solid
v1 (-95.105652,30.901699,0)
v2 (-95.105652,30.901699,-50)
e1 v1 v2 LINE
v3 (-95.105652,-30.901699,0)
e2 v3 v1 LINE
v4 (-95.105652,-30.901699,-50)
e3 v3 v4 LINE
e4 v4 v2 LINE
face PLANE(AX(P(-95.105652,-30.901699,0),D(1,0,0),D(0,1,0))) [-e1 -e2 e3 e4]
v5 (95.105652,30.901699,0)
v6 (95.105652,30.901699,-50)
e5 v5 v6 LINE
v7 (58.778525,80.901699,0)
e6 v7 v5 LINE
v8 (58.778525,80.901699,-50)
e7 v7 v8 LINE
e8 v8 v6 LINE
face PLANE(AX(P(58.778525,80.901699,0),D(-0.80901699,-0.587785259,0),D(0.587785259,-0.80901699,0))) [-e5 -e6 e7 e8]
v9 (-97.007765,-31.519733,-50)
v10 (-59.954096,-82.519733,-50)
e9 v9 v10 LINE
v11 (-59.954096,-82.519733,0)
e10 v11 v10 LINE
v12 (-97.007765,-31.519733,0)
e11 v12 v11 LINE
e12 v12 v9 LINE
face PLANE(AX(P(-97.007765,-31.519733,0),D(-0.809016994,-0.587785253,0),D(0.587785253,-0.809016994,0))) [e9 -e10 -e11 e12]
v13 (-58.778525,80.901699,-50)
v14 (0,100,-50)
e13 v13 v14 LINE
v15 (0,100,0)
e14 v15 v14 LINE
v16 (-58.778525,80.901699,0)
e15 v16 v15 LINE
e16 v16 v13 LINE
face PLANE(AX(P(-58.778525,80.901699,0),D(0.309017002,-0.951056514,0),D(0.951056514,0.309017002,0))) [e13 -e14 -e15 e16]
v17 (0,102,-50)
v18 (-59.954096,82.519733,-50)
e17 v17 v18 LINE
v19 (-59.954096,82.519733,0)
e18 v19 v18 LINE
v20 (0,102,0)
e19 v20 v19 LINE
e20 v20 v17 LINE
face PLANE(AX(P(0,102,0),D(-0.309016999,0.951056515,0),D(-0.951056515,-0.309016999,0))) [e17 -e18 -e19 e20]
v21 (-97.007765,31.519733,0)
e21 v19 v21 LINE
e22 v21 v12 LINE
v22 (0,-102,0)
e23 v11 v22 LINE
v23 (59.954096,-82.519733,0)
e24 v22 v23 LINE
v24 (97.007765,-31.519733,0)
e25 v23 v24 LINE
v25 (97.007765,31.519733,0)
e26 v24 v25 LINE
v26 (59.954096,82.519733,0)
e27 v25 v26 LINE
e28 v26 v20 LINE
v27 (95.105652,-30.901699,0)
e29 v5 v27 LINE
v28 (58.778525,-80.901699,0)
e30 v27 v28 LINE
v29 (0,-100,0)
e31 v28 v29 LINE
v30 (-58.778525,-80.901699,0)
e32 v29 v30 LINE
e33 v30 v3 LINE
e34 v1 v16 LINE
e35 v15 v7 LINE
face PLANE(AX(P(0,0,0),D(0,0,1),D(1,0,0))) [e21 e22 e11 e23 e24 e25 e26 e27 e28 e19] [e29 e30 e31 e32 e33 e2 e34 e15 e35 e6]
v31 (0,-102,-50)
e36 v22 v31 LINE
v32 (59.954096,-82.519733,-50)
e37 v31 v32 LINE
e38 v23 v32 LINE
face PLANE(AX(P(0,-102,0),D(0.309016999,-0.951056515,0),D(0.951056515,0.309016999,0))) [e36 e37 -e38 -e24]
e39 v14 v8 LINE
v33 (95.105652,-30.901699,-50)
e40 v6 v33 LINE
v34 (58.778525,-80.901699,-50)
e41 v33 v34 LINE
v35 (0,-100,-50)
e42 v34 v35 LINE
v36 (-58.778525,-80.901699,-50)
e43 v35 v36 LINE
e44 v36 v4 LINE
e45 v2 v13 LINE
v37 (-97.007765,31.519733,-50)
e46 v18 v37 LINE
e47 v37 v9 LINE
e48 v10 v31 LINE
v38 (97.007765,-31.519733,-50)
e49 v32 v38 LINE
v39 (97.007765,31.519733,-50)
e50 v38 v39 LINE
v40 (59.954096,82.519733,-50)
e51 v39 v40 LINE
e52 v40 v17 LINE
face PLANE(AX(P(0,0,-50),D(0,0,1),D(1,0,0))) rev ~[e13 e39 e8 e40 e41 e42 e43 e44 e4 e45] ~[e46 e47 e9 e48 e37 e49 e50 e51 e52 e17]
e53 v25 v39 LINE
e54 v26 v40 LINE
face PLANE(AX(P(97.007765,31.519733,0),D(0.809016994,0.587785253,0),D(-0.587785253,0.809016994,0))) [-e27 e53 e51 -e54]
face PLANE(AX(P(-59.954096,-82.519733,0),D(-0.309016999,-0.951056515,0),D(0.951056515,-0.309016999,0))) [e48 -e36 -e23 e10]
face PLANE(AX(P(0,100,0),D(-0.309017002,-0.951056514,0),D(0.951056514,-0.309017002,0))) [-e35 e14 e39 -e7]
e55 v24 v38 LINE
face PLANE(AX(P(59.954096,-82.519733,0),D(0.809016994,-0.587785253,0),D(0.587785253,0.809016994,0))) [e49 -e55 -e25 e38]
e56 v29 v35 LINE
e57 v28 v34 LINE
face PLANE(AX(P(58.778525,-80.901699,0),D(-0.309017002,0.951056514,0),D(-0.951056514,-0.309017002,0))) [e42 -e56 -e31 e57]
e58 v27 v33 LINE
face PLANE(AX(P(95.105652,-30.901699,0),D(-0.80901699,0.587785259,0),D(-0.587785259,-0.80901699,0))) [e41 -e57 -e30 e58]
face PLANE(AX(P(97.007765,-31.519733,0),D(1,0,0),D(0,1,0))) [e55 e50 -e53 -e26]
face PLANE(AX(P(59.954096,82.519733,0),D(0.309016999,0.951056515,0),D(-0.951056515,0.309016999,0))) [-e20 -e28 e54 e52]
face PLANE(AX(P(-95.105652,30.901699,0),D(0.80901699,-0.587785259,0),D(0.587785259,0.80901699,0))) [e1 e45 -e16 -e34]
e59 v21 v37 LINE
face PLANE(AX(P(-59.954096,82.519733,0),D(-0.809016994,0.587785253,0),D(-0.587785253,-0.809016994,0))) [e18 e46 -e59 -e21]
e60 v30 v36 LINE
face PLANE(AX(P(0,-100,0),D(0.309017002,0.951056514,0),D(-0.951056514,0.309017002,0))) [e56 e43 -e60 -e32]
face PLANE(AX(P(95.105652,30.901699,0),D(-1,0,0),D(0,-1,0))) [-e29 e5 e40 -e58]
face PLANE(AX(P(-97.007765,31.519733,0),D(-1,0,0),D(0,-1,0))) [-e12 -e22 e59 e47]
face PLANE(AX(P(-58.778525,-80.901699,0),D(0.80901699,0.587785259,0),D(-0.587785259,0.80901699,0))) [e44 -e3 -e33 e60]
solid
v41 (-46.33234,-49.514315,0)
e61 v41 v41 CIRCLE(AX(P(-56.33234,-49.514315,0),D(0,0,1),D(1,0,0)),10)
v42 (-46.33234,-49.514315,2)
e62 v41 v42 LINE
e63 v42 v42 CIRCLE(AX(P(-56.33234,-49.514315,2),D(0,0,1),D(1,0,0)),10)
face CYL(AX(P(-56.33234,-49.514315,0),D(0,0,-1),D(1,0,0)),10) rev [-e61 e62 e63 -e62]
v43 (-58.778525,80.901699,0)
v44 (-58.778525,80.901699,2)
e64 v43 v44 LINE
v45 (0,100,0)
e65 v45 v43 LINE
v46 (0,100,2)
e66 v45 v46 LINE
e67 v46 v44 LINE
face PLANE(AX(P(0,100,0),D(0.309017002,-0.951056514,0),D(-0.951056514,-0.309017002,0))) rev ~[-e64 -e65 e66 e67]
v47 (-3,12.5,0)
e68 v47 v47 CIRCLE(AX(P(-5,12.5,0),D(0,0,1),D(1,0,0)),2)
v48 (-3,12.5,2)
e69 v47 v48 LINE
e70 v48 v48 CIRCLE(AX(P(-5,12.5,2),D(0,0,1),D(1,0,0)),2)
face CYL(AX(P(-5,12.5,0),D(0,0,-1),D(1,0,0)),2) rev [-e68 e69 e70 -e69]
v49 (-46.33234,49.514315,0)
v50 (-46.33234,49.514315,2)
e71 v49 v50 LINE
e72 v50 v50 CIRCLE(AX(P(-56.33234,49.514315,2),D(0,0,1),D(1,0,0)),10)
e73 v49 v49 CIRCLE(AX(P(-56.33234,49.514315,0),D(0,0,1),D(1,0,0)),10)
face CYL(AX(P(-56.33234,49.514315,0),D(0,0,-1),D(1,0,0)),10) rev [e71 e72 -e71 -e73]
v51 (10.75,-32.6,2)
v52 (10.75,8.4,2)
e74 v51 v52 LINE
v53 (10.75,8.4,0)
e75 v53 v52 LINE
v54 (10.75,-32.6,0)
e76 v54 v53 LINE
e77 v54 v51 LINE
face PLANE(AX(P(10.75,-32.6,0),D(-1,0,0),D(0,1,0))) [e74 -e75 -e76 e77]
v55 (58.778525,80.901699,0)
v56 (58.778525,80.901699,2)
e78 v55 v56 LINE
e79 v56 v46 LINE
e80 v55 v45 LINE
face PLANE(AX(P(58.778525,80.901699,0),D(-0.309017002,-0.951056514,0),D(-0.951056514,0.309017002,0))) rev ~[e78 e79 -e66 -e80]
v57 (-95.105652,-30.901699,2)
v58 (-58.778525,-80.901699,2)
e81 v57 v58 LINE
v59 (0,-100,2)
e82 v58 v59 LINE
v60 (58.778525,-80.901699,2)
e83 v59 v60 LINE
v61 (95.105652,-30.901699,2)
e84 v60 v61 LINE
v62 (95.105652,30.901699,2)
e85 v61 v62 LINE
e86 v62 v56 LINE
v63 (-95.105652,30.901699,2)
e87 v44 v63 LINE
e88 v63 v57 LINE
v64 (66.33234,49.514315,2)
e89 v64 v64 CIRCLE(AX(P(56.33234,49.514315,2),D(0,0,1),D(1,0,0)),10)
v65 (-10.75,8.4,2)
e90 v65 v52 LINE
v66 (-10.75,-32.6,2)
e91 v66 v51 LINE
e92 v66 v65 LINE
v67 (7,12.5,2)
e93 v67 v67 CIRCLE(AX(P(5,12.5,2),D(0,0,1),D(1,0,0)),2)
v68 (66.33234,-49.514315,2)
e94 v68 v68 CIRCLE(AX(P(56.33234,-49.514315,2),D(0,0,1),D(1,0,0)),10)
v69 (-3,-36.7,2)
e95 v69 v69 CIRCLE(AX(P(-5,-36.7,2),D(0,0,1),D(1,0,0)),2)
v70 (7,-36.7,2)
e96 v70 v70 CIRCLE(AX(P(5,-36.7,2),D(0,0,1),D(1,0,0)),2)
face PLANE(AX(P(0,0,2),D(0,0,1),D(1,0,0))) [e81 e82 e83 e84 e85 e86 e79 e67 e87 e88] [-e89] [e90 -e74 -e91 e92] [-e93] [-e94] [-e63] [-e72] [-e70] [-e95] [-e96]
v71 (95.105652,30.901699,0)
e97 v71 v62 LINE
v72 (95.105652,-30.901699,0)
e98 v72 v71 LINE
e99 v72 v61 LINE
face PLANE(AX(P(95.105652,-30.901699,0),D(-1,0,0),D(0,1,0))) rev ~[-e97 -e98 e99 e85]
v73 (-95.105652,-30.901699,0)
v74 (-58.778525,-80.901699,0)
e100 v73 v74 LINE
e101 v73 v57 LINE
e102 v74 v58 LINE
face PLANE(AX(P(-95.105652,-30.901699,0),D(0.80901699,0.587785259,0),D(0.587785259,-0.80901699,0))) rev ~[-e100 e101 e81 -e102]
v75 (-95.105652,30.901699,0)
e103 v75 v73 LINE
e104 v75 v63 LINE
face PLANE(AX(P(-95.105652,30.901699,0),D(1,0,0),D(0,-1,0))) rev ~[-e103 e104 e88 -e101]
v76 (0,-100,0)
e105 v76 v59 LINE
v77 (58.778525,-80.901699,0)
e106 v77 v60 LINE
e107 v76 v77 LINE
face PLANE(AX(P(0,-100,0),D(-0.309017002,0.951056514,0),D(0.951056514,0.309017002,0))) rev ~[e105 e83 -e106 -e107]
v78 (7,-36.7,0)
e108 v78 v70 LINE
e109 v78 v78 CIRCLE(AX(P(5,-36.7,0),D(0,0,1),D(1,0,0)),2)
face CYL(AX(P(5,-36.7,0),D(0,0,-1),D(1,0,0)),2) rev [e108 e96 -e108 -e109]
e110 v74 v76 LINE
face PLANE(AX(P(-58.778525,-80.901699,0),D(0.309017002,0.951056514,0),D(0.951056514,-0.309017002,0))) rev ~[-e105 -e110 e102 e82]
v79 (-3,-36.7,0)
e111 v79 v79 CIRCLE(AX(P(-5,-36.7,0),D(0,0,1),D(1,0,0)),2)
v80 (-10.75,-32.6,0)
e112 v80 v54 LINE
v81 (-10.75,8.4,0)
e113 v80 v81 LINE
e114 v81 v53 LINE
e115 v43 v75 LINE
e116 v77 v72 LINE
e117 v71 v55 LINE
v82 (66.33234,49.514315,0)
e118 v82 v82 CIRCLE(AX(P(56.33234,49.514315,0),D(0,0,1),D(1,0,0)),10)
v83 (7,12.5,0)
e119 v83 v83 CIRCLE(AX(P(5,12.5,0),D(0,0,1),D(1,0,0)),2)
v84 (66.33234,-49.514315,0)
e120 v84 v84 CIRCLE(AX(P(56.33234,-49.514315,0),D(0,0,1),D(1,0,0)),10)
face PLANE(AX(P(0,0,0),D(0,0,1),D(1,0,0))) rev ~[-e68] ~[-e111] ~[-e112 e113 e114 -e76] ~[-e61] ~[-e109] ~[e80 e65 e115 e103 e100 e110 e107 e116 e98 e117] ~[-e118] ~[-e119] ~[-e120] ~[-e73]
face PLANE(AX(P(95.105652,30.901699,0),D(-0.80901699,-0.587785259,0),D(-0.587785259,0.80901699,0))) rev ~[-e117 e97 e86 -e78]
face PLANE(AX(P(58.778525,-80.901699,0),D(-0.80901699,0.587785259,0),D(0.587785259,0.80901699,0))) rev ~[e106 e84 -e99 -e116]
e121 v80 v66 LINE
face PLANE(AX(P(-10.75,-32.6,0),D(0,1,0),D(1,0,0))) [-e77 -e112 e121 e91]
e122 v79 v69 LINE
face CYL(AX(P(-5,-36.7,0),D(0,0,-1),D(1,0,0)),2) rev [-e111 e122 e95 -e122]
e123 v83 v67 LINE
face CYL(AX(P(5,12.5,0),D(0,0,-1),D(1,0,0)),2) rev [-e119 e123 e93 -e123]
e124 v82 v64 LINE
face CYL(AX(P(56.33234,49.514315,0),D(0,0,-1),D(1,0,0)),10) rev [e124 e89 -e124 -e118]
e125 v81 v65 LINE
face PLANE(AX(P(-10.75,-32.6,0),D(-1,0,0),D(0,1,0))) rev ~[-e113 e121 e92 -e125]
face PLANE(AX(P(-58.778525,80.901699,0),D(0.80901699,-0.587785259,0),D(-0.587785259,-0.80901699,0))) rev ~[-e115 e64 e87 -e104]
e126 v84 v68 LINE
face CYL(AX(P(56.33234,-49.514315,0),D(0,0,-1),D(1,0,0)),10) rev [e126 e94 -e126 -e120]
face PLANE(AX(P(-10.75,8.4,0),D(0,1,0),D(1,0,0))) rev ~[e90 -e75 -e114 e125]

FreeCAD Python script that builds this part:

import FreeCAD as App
import Part
import Sketcher

V = App.Vector
Q = App.Units.Quantity

doc = App.newDocument("Part")
body = doc.addObject("PartDesign::Body", "Body")

sketch1 = doc.addObject("Sketcher::SketchObject", "Sketch")
body.addObject(sketch1)
sketch1.AttachmentSupport = (doc.XY_Plane, [""])
sketch1.MapMode = "FlatFace"
sketch1.addGeometry(Part.LineSegment(V(58.778525, 80.901699, 0), V(0, 100, 0)), False)
sketch1.addGeometry(Part.LineSegment(V(0, 100, 0), V(-58.778525, 80.901699, 0)), False)
sketch1.addGeometry(Part.LineSegment(V(-58.778525, 80.901699, 0), V(-95.105652, 30.901699, 0)), False)
sketch1.addGeometry(Part.LineSegment(V(-95.105652, 30.901699, 0), V(-95.105652, -30.901699, 0)), False)
sketch1.addGeometry(Part.LineSegment(V(-95.105652, -30.901699, 0), V(-58.778525, -80.901699, 0)), False)
sketch1.addGeometry(Part.LineSegment(V(-58.778525, -80.901699, 0), V(0, -100, 0)), False)
sketch1.addGeometry(Part.LineSegment(V(0, -100, 0), V(58.778525, -80.901699, 0)), False)
sketch1.addGeometry(Part.LineSegment(V(58.778525, -80.901699, 0), V(95.105652, -30.901699, 0)), False)
sketch1.addGeometry(Part.LineSegment(V(95.105652, -30.901699, 0), V(95.105652, 30.901699, 0)), False)
sketch1.addGeometry(Part.LineSegment(V(95.105652, 30.901699, 0), V(58.778525, 80.901699, 0)), False)
sketch1.addGeometry(Part.Circle(V(-56.33234, -49.514315, 0), V(0, 0, 1), 10), False)
sketch1.addGeometry(Part.Circle(V(-5, -36.7, 0), V(0, 0, 1), 2), False)
sketch1.addGeometry(Part.LineSegment(V(10.75, -32.6, 0), V(-10.75, -32.6, 0)), False)
sketch1.addGeometry(Part.LineSegment(V(-10.75, -32.6, 0), V(-10.75, 8.4, 0)), False)
sketch1.addGeometry(Part.LineSegment(V(-10.75, 8.4, 0), V(10.75, 8.4, 0)), False)
sketch1.addGeometry(Part.LineSegment(V(10.75, 8.4, 0), V(10.75, -32.6, 0)), False)
sketch1.addGeometry(Part.Circle(V(5, -36.7, 0), V(0, 0, 1), 2), False)
sketch1.addGeometry(Part.Circle(V(56.33234, -49.514315, 0), V(0, 0, 1), 10), False)
sketch1.addGeometry(Part.Circle(V(-5, 12.5, 0), V(0, 0, 1), 2), False)
sketch1.addGeometry(Part.Circle(V(-56.33234, 49.514315, 0), V(0, 0, 1), 10), False)
sketch1.addGeometry(Part.Circle(V(5, 12.5, 0), V(0, 0, 1), 2), False)
sketch1.addGeometry(Part.Circle(V(56.33234, 49.514315, 0), V(0, 0, 1), 10), False)
sketch1.addConstraint(Sketcher.Constraint("Coincident", 0, 2, 1, 1))
sketch1.addConstraint(Sketcher.Constraint("Coincident", 1, 2, 2, 1))
sketch1.addConstraint(Sketcher.Constraint("Coincident", 2, 2, 3, 1))
sketch1.addConstraint(Sketcher.Constraint("Coincident", 3, 2, 4, 1))
sketch1.addConstraint(Sketcher.Constraint("Coincident", 4, 2, 5, 1))
sketch1.addConstraint(Sketcher.Constraint("Coincident", 5, 2, 6, 1))
sketch1.addConstraint(Sketcher.Constraint("Coincident", 6, 2, 7, 1))
sketch1.addConstraint(Sketcher.Constraint("Coincident", 7, 2, 8, 1))
sketch1.addConstraint(Sketcher.Constraint("Coincident", 8, 2, 9, 1))
sketch1.addConstraint(Sketcher.Constraint("Coincident", 9, 2, 0, 1))
sketch1.addConstraint(Sketcher.Constraint("Coincident", 12, 2, 13, 1))
sketch1.addConstraint(Sketcher.Constraint("Coincident", 13, 2, 14, 1))
sketch1.addConstraint(Sketcher.Constraint("Coincident", 14, 2, 15, 1))
sketch1.addConstraint(Sketcher.Constraint("Coincident", 15, 2, 12, 1))
sketch1.addConstraint(Sketcher.Constraint("Vertical", 3))
sketch1.addConstraint(Sketcher.Constraint("Vertical", 8))
sketch1.addConstraint(Sketcher.Constraint("Horizontal", 12))
sketch1.addConstraint(Sketcher.Constraint("Vertical", 13))
sketch1.addConstraint(Sketcher.Constraint("Horizontal", 14))
sketch1.addConstraint(Sketcher.Constraint("Vertical", 15))
sketch1.addConstraint(Sketcher.Constraint("Equal", 11, 16))
sketch1.addConstraint(Sketcher.Constraint("Equal", 10, 17))
sketch1.addConstraint(Sketcher.Constraint("Equal", 16, 18))
sketch1.addConstraint(Sketcher.Constraint("Equal", 17, 19))
sketch1.addConstraint(Sketcher.Constraint("Equal", 18, 20))
sketch1.addConstraint(Sketcher.Constraint("Equal", 19, 21))
sketch1.addConstraint(Sketcher.Constraint("Symmetric", 17, 3, 19, 3, -1, 1))
sketch1.addConstraint(Sketcher.Constraint("Symmetric", 10, 3, 21, 3, -1, 1))
sketch1.addConstraint(Sketcher.Constraint("Symmetric", 0, 2, 5, 2, -1, 1))
sketch1.addConstraint(Sketcher.Constraint("Symmetric", 1, 2, 6, 2, -1, 1))
sketch1.addConstraint(Sketcher.Constraint("Symmetric", 2, 2, 7, 2, -1, 1))
sketch1.addConstraint(Sketcher.Constraint("Symmetric", 4, 2, 9, 2, -1, 1))
sketch1.addConstraint(Sketcher.Constraint("Symmetric", 11, 3, 16, 3, -2))
sketch1.addConstraint(Sketcher.Constraint("Symmetric", 10, 3, 17, 3, -2))
sketch1.addConstraint(Sketcher.Constraint("Symmetric", 18, 3, 20, 3, -2))
sketch1.addConstraint(Sketcher.Constraint("Symmetric", 4, 2, 6, 2, -2))
sketch1.addConstraint(Sketcher.Constraint("PointOnObject", 0, 2, -2))
sketch1.addConstraint(Sketcher.Constraint("Parallel", 4, 9))
sketch1.addConstraint(Sketcher.Constraint("Horizontal", 3, 2, 7, 2))
sketch1.addConstraint(Sketcher.Constraint("Vertical", 11, 3, 18, 3))
sketch1.addConstraint(Sketcher.Constraint("Equal", 1, 2))
sketch1.addConstraint(Sketcher.Constraint("Diameter", 10, Q("20 mm")))
sketch1.addConstraint(Sketcher.Constraint("Diameter", 11, Q("4 mm")))
sketch1.addConstraint(Sketcher.Constraint("DistanceY", 13, 1, 13, 2, Q("41 mm")))
sketch1.addConstraint(Sketcher.Constraint("Angle", 0, Q("162 deg")))
sketch1.addConstraint(Sketcher.Constraint("Angle", 2, Q("-126 deg")))
sketch1.addConstraint(Sketcher.Constraint("DistanceX", 12, 2, 12, 1, Q("21.5 mm")))
sketch1.addConstraint(Sketcher.Constraint("DistanceX", 11, 3, -1, 1, Q("5 mm")))
sketch1.addConstraint(Sketcher.Constraint("DistanceY", -1, 1, 0, 2, Q("100 mm")))
sketch1.addConstraint(Sketcher.Constraint("DistanceY", 2, 2, 1, 2, Q("50 mm")))
sketch1.addConstraint(Sketcher.Constraint("DistanceY", 11, 3, -1, 1, Q("36.7 mm")))
sketch1.addConstraint(Sketcher.Constraint("DistanceY", -1, 1, 18, 3, Q("12.5 mm")))
sketch1.addConstraint(Sketcher.Constraint("DistanceY", 12, 2, -1, 1, Q("32.6 mm")))
sketch1.addConstraint(Sketcher.Constraint("DistanceX", 12, 2, -1, 1, Q("10.75 mm")))
sketch1.addConstraint(Sketcher.Constraint("DistanceX", 10, 3, -1, 1, Q("56.33234 mm")))
sketch1.addConstraint(Sketcher.Constraint("DistanceY", 10, 3, 19, 3, Q("99.02863 mm")))
pad1 = doc.addObject("PartDesign::Pad", "Pad")
body.addObject(pad1)
pad1.Profile = sketch1
pad1.Length = 2
body2 = doc.addObject("PartDesign::Body", "Body001")

sketch2 = doc.addObject("Sketcher::SketchObject", "Sketch001")
body2.addObject(sketch2)
sketch2.AttachmentSupport = (doc.getObject("XY_Plane001"), [""])
sketch2.MapMode = "FlatFace"
sketch2.addGeometry(Part.LineSegment(V(59.954096, 82.519733, 0), V(0, 102, 0)), False)
sketch2.addGeometry(Part.LineSegment(V(0, 102, 0), V(-59.954096, 82.519733, 0)), False)
sketch2.addGeometry(Part.LineSegment(V(-59.954096, 82.519733, 0), V(-97.007765, 31.519733, 0)), False)
sketch2.addGeometry(Part.LineSegment(V(-97.007765, 31.519733, 0), V(-97.007765, -31.519733, 0)), False)
sketch2.addGeometry(Part.LineSegment(V(-97.007765, -31.519733, 0), V(-59.954096, -82.519733, 0)), False)
sketch2.addGeometry(Part.LineSegment(V(-59.954096, -82.519733, 0), V(0, -102, 0)), False)
sketch2.addGeometry(Part.LineSegment(V(0, -102, 0), V(59.954096, -82.519733, 0)), False)
sketch2.addGeometry(Part.LineSegment(V(59.954096, -82.519733, 0), V(97.007765, -31.519733, 0)), False)
sketch2.addGeometry(Part.LineSegment(V(97.007765, -31.519733, 0), V(97.007765, 31.519733, 0)), False)
sketch2.addGeometry(Part.LineSegment(V(97.007765, 31.519733, 0), V(59.954096, 82.519733, 0)), False)
sketch2.addGeometry(Part.LineSegment(V(-95.105652, 30.901699, 0), V(-58.778525, 80.901699, 0)), False)
sketch2.addGeometry(Part.LineSegment(V(-58.778525, 80.901699, 0), V(0, 100, 0)), False)
sketch2.addGeometry(Part.LineSegment(V(0, 100, 0), V(58.778525, 80.901699, 0)), False)
sketch2.addGeometry(Part.LineSegment(V(58.778525, 80.901699, 0), V(95.105652, 30.901699, 0)), False)
sketch2.addGeometry(Part.LineSegment(V(95.105652, 30.901699, 0), V(95.105652, -30.901699, 0)), False)
sketch2.addGeometry(Part.LineSegment(V(95.105652, -30.901699, 0), V(58.778525, -80.901699, 0)), False)
sketch2.addGeometry(Part.LineSegment(V(58.778525, -80.901699, 0), V(0, -100, 0)), False)
sketch2.addGeometry(Part.LineSegment(V(0, -100, 0), V(-58.778525, -80.901699, 0)), False)
sketch2.addGeometry(Part.LineSegment(V(-58.778525, -80.901699, 0), V(-95.105652, -30.901699, 0)), False)
sketch2.addGeometry(Part.LineSegment(V(-95.105652, -30.901699, 0), V(-95.105652, 30.901699, 0)), False)
sketch2.addConstraint(Sketcher.Constraint("Coincident", 0, 2, 1, 1))
sketch2.addConstraint(Sketcher.Constraint("Coincident", 1, 2, 2, 1))
sketch2.addConstraint(Sketcher.Constraint("Coincident", 2, 2, 3, 1))
sketch2.addConstraint(Sketcher.Constraint("Coincident", 3, 2, 4, 1))
sketch2.addConstraint(Sketcher.Constraint("Coincident", 4, 2, 5, 1))
sketch2.addConstraint(Sketcher.Constraint("Coincident", 5, 2, 6, 1))
sketch2.addConstraint(Sketcher.Constraint("Coincident", 6, 2, 7, 1))
sketch2.addConstraint(Sketcher.Constraint("Coincident", 7, 2, 8, 1))
sketch2.addConstraint(Sketcher.Constraint("Coincident", 8, 2, 9, 1))
sketch2.addConstraint(Sketcher.Constraint("Coincident", 9, 2, 0, 1))
sketch2.addConstraint(Sketcher.Constraint("Coincident", 10, 2, 11, 1))
sketch2.addConstraint(Sketcher.Constraint("Coincident", 11, 2, 12, 1))
sketch2.addConstraint(Sketcher.Constraint("Coincident", 12, 2, 13, 1))
sketch2.addConstraint(Sketcher.Constraint("Coincident", 13, 2, 14, 1))
sketch2.addConstraint(Sketcher.Constraint("Coincident", 14, 2, 15, 1))
sketch2.addConstraint(Sketcher.Constraint("Coincident", 15, 2, 16, 1))
sketch2.addConstraint(Sketcher.Constraint("Coincident", 16, 2, 17, 1))
sketch2.addConstraint(Sketcher.Constraint("Coincident", 17, 2, 18, 1))
sketch2.addConstraint(Sketcher.Constraint("Coincident", 18, 2, 19, 1))
sketch2.addConstraint(Sketcher.Constraint("Coincident", 19, 2, 10, 1))
sketch2.addConstraint(Sketcher.Constraint("Vertical", 3))
sketch2.addConstraint(Sketcher.Constraint("Vertical", 8))
sketch2.addConstraint(Sketcher.Constraint("Vertical", 14))
sketch2.addConstraint(Sketcher.Constraint("Vertical", 19))
sketch2.addConstraint(Sketcher.Constraint("Symmetric", 0, 2, 5, 2, -1, 1))
sketch2.addConstraint(Sketcher.Constraint("Symmetric", 1, 2, 6, 2, -1, 1))
sketch2.addConstraint(Sketcher.Constraint("Symmetric", 2, 2, 7, 2, -1, 1))
sketch2.addConstraint(Sketcher.Constraint("Symmetric", 4, 2, 9, 2, -1, 1))
sketch2.addConstraint(Sketcher.Constraint("Symmetric", 10, 2, 15, 2, -1, 1))
sketch2.addConstraint(Sketcher.Constraint("Symmetric", 11, 2, 16, 2, -1, 1))
sketch2.addConstraint(Sketcher.Constraint("Symmetric", 12, 2, 17, 2, -1, 1))
sketch2.addConstraint(Sketcher.Constraint("Symmetric", 13, 2, 18, 2, -1, 1))
sketch2.addConstraint(Sketcher.Constraint("Symmetric", 4, 2, 6, 2, -2))
sketch2.addConstraint(Sketcher.Constraint("Symmetric", 10, 2, 12, 2, -2))
sketch2.addConstraint(Sketcher.Constraint("PointOnObject", 0, 2, -2))
sketch2.addConstraint(Sketcher.Constraint("PointOnObject", 11, 2, -2))
sketch2.addConstraint(Sketcher.Constraint("Parallel", 4, 9))
sketch2.addConstraint(Sketcher.Constraint("Parallel", 7, 10))
sketch2.addConstraint(Sketcher.Constraint("Parallel", 6, 11))
sketch2.addConstraint(Sketcher.Constraint("Parallel", 9, 13))
sketch2.addConstraint(Sketcher.Constraint("Parallel", 10, 15))
sketch2.addConstraint(Sketcher.Constraint("Horizontal", 3, 2, 7, 2))
sketch2.addConstraint(Sketcher.Constraint("Equal", 1, 2))
sketch2.addConstraint(Sketcher.Constraint("Equal", 10, 11))
sketch2.addConstraint(Sketcher.Constraint("Angle", 0, Q("162 deg")))
sketch2.addConstraint(Sketcher.Constraint("Angle", 2, Q("-126 deg")))
sketch2.addConstraint(Sketcher.Constraint("DistanceY", -1, 1, 0, 2, Q("102 mm")))
sketch2.addConstraint(Sketcher.Constraint("DistanceY", -1, 1, 11, 2, Q("100 mm")))
sketch2.addConstraint(Sketcher.Constraint("DistanceY", 2, 2, 1, 2, Q("51 mm")))
sketch2.addConstraint(Sketcher.Constraint("DistanceY", 13, 2, 12, 2, Q("50 mm")))
pad2 = doc.addObject("PartDesign::Pad", "Pad001")
body2.addObject(pad2)
pad2.Profile = sketch2
pad2.Length = 50
pad2.Reversed = True

doc.recompute()
